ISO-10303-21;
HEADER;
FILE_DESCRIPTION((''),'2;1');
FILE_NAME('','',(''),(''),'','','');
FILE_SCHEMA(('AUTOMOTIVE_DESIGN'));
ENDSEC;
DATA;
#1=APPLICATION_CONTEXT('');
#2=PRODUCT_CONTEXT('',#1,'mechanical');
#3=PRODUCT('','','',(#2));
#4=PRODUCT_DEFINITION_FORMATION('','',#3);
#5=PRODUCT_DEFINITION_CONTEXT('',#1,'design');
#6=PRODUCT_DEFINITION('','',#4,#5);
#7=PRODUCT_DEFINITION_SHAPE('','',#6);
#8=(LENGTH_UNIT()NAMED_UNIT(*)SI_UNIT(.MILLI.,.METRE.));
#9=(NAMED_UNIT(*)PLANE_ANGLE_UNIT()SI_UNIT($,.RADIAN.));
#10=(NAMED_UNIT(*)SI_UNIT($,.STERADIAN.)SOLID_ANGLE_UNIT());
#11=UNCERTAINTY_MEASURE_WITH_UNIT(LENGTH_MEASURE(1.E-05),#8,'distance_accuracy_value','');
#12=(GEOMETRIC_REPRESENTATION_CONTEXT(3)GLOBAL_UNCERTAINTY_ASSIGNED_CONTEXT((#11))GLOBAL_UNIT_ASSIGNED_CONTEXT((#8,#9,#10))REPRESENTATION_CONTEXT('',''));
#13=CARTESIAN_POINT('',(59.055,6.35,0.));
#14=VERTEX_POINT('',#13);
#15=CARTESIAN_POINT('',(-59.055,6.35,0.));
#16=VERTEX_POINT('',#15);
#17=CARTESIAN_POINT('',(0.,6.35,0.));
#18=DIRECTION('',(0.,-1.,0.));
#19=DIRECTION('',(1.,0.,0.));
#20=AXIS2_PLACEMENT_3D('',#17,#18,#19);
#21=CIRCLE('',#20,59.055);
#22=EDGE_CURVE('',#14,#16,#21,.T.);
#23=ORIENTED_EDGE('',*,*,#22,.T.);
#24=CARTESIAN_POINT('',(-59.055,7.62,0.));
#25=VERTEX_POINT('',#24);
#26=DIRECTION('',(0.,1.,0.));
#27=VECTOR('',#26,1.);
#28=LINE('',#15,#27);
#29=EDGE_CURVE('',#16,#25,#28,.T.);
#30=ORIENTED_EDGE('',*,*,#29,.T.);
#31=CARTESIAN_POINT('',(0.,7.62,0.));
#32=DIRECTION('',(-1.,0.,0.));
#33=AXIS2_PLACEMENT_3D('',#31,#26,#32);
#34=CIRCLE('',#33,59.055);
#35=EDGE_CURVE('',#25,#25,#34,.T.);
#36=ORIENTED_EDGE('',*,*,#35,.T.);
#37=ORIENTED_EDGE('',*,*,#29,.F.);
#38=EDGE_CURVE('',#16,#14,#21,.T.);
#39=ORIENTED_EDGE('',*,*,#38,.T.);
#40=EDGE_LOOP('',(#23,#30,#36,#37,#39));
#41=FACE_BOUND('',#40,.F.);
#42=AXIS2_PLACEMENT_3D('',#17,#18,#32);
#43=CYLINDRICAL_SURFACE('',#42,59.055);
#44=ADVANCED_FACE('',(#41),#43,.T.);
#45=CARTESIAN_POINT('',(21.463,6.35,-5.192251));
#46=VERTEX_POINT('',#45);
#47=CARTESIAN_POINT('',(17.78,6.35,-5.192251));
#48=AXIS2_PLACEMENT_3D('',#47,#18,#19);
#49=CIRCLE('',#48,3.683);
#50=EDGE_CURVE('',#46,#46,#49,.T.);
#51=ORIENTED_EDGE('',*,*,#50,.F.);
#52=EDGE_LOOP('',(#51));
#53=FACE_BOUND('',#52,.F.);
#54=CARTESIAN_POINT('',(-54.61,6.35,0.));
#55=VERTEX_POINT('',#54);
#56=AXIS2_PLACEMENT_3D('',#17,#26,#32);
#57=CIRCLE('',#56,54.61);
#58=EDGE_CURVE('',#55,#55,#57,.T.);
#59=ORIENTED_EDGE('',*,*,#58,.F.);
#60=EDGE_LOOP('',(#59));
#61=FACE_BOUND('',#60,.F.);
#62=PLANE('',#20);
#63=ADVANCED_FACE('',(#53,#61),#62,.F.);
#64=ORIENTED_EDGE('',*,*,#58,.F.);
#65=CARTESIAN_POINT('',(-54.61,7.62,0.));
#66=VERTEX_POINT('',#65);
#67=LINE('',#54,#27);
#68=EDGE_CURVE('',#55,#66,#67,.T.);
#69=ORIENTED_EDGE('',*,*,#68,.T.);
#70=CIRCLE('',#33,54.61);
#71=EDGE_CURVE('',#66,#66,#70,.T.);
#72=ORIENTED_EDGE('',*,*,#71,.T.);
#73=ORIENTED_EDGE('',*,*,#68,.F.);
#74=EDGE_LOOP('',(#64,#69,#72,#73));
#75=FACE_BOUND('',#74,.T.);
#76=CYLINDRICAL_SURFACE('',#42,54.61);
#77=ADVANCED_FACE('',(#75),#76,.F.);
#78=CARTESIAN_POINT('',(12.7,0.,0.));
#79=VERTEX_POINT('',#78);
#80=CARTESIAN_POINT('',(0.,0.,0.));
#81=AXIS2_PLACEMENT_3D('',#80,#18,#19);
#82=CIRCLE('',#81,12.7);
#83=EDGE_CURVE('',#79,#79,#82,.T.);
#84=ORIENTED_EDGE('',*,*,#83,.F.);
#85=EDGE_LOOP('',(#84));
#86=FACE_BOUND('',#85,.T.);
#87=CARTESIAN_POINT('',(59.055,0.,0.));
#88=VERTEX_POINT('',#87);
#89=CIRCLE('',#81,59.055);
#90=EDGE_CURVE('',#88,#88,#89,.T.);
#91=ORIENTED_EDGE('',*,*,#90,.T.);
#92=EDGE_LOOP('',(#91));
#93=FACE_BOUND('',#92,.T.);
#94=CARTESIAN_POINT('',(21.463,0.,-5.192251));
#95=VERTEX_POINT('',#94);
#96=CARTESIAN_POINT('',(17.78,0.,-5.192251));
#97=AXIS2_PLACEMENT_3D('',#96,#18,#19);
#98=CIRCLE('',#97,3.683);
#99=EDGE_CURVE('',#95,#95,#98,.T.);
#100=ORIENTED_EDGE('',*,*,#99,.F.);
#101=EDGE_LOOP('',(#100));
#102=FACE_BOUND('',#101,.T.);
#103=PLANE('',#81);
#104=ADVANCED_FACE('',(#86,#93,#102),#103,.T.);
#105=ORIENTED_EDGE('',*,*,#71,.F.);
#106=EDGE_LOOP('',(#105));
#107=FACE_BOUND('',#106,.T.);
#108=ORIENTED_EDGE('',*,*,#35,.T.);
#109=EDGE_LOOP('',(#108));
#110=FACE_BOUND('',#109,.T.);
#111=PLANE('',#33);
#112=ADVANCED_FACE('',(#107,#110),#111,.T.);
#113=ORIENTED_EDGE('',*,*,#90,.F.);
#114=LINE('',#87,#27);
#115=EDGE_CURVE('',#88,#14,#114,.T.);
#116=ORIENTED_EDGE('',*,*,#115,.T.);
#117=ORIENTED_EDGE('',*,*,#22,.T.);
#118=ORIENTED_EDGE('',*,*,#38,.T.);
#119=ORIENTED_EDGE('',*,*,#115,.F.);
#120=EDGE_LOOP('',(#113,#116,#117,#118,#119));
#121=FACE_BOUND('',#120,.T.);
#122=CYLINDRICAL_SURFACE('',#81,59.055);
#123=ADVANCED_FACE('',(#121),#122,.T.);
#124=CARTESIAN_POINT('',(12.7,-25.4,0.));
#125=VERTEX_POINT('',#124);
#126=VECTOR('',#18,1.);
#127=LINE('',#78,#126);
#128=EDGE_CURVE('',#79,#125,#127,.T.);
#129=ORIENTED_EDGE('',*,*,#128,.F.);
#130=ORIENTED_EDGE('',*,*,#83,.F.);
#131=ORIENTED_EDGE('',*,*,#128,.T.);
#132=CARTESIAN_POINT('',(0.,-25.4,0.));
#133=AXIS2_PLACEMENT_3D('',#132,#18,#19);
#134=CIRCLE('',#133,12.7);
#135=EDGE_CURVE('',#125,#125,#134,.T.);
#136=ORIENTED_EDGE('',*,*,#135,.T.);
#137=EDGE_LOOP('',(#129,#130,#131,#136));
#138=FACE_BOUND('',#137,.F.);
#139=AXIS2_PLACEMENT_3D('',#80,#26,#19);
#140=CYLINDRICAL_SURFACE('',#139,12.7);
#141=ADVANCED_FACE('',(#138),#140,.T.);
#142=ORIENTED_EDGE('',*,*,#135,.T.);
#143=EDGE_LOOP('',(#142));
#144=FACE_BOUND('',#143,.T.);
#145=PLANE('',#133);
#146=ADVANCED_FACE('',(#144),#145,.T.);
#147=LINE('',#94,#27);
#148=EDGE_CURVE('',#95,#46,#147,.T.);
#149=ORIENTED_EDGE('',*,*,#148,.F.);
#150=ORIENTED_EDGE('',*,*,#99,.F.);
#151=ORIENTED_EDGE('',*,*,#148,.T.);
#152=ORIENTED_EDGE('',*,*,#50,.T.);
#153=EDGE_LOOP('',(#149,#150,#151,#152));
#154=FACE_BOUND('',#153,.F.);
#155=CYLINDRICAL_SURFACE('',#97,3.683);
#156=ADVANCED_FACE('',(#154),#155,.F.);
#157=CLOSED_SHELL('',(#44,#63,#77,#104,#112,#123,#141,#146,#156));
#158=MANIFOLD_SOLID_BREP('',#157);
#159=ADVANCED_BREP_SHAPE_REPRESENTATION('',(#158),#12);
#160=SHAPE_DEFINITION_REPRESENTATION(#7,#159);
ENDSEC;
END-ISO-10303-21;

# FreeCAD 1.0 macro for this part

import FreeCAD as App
import Part
import Sketcher
from FreeCAD import Vector
Q = App.Units.Quantity

doc = App.newDocument("Part")
params = doc.addObject("Spreadsheet::Sheet", "Params")
for row, (alias, value) in enumerate([
    ("sketch1_diameter", "1 in"),
    ("pad1_length", "1 in"),
    ("sketch2_diameter", "4.65 in"),
    ("pad2_length", "0.25 in"),
    ("sketch3_diameter", "0.29 in"),
    ("sketch4_diameter", "4.3 in"),
    ("sketch4_diameter2", "4.65 in"),
    ("pad3_length", "0.05 in"),
], start=1):
    params.set(f"A{row}", alias)
    params.set(f"B{row}", "=" + value)
    params.setAlias(f"B{row}", alias)

body = doc.addObject("PartDesign::Body", "Body")

sketch1 = doc.addObject("Sketcher::SketchObject", "Sketch")
body.addObject(sketch1)
sketch1.AttachmentSupport = (doc.XZ_Plane, [""])
sketch1.MapMode = "FlatFace"
sketch1.addGeometry(Part.Circle(Vector(0, 0, 0), Vector(0, 0, 1), 13), False)
sketch1.addConstraint(Sketcher.Constraint("Coincident", 0, 3, -1, 1))
sketch1.addConstraint(Sketcher.Constraint("Diameter", 0, Q("1 in")))
sketch1.setExpression("Constraints[1]", "Params.sketch1_diameter")
pad1 = doc.addObject("PartDesign::Pad", "Pad")
body.addObject(pad1)
pad1.Profile = sketch1
pad1.setExpression("Length", "Params.pad1_length")

sketch2 = doc.addObject("Sketcher::SketchObject", "Sketch001")
body.addObject(sketch2)
sketch2.AttachmentSupport = (doc.XZ_Plane, [""])
sketch2.MapMode = "FlatFace"
sketch2.addGeometry(Part.Circle(Vector(0, 0, 0), Vector(0, 0, 1), 59), False)
sketch2.addConstraint(Sketcher.Constraint("Coincident", 0, 3, -1, 1))
sketch2.addConstraint(Sketcher.Constraint("Diameter", 0, Q("4.65 in")))
sketch2.setExpression("Constraints[1]", "Params.sketch2_diameter")
pad2 = doc.addObject("PartDesign::Pad", "Pad001")
body.addObject(pad2)
pad2.Profile = sketch2
pad2.setExpression("Length", "Params.pad2_length")
pad2.Reversed = True

sketch3 = doc.addObject("Sketcher::SketchObject", "Sketch002")
body.addObject(sketch3)
sketch3.AttachmentSupport = (doc.XZ_Plane, [""])
sketch3.MapMode = "FlatFace"
sketch3.addGeometry(Part.Circle(Vector(17.8, -5.2, 0), Vector(0, 0, 1), 3.7), False)
sketch3.addConstraint(Sketcher.Constraint("Diameter", 0, Q("0.29 in")))
sketch3.addConstraint(Sketcher.Constraint("DistanceX", -1, 1, 0, 3, Q("0.7 in")))
sketch3.addConstraint(Sketcher.Constraint("DistanceY", 0, 3, -1, 1, Q("5.192251 mm")))
sketch3.setExpression("Constraints[0]", "Params.sketch3_diameter")
pocket1 = doc.addObject("PartDesign::Pocket", "Pocket")
body.addObject(pocket1)
pocket1.Profile = sketch3
pocket1.Type = "ThroughAll"

sketch4 = doc.addObject("Sketcher::SketchObject", "Sketch003")
body.addObject(sketch4)
sketch4.AttachmentSupport = (doc.XZ_Plane, [""])
sketch4.MapMode = "FlatFace"
sketch4.AttachmentOffset = App.Placement(Vector(0, 0, -0.25 * 25.4), App.Rotation())
sketch4.addGeometry(Part.Circle(Vector(0, 0, 0), Vector(0, 0, 1), 59), False)
sketch4.addGeometry(Part.Circle(Vector(0, 0, 0), Vector(0, 0, 1), 55), False)
sketch4.addConstraint(Sketcher.Constraint("Coincident", 0, 3, -1, 1))
sketch4.addConstraint(Sketcher.Constraint("Coincident", 1, 3, -1, 1))
sketch4.addConstraint(Sketcher.Constraint("Diameter", 1, Q("4.3 in")))
sketch4.addConstraint(Sketcher.Constraint("Diameter", 0, Q("4.65 in")))
sketch4.setExpression("Constraints[2]", "Params.sketch4_diameter")
sketch4.setExpression("Constraints[3]", "Params.sketch4_diameter2")
pad3 = doc.addObject("PartDesign::Pad", "Pad002")
body.addObject(pad3)
pad3.Profile = sketch4
pad3.setExpression("Length", "Params.pad3_length")
pad3.Reversed = True

doc.recompute()
